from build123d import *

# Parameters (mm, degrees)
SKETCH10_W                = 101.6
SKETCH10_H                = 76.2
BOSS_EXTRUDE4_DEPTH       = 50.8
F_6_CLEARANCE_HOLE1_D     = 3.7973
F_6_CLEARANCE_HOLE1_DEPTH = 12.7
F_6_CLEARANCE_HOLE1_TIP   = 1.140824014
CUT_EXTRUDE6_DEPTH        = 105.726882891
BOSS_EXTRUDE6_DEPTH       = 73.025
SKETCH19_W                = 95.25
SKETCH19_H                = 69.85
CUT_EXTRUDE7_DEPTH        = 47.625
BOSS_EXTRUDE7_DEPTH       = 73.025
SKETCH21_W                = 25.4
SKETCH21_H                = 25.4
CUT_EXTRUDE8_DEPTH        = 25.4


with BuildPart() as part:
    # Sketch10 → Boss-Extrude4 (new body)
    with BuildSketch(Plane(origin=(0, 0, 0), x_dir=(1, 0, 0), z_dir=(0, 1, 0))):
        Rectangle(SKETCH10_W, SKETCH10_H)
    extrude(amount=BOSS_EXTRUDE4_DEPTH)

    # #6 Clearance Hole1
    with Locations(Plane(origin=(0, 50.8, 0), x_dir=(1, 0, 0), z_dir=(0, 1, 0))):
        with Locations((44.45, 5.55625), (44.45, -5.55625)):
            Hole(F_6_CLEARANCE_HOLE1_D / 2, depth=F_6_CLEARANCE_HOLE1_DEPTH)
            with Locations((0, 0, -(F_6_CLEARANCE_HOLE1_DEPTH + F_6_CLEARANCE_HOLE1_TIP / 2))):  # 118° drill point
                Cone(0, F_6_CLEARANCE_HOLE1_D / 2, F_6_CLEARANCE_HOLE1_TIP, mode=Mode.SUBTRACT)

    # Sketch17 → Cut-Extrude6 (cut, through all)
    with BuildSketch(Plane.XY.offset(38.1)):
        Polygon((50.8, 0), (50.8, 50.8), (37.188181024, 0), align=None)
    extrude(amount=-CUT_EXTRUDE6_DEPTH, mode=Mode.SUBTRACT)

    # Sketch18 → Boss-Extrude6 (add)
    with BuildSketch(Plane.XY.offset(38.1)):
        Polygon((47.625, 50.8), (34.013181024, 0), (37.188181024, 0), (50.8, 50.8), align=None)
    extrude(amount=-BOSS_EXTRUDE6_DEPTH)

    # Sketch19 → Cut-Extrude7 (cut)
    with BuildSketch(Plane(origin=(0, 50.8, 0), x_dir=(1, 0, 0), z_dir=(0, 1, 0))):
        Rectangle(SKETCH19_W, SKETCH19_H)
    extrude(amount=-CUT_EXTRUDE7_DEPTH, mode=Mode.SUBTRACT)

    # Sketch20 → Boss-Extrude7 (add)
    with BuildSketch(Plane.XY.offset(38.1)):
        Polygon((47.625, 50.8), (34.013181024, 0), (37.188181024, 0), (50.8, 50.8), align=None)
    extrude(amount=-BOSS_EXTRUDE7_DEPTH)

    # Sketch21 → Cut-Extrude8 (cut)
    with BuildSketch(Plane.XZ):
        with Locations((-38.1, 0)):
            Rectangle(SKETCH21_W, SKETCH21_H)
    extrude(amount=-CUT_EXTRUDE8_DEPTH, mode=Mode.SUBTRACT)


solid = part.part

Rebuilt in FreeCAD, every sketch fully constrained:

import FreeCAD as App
import Part
import Sketcher
from FreeCAD import Vector
Q = App.Units.Quantity

doc = App.newDocument("Part")
body = doc.addObject("PartDesign::Body", "Body")

sketch1 = doc.addObject("Sketcher::SketchObject", "Sketch")
body.addObject(sketch1)
sketch1.AttachmentSupport = (doc.XZ_Plane, [""])
sketch1.MapMode = "FlatFace"
sketch1.addGeometry(Part.LineSegment(Vector(-50.8, -38.1, 0), Vector(-50.8, 38.1, 0)), False)
sketch1.addGeometry(Part.LineSegment(Vector(-50.8, 38.1, 0), Vector(50.8, 38.1, 0)), False)
sketch1.addGeometry(Part.LineSegment(Vector(50.8, 38.1, 0), Vector(50.8, -38.1, 0)), False)
sketch1.addGeometry(Part.LineSegment(Vector(50.8, -38.1, 0), Vector(-50.8, -38.1, 0)), False)
sketch1.addConstraint(Sketcher.Constraint("Coincident", 0, 2, 1, 1))
sketch1.addConstraint(Sketcher.Constraint("Coincident", 1, 2, 2, 1))
sketch1.addConstraint(Sketcher.Constraint("Coincident", 2, 2, 3, 1))
sketch1.addConstraint(Sketcher.Constraint("Coincident", 3, 2, 0, 1))
sketch1.addConstraint(Sketcher.Constraint("Vertical", 0))
sketch1.addConstraint(Sketcher.Constraint("Horizontal", 1))
sketch1.addConstraint(Sketcher.Constraint("Vertical", 2))
sketch1.addConstraint(Sketcher.Constraint("Horizontal", 3))
sketch1.addConstraint(Sketcher.Constraint("Symmetric", 0, 2, 2, 2, -1, 1))
sketch1.addConstraint(Sketcher.Constraint("DistanceX", 1, 1, 1, 2, Q("4 in")))
sketch1.addConstraint(Sketcher.Constraint("DistanceY", 0, 1, 0, 2, Q("3 in")))
pad1 = doc.addObject("PartDesign::Pad", "Pad")
body.addObject(pad1)
pad1.Profile = sketch1
pad1.Length = Q("2 in")
pad1.Reversed = True

sketch2 = doc.addObject("Sketcher::SketchObject", "Sketch001")
body.addObject(sketch2)
sketch2.AttachmentSupport = (doc.XZ_Plane, [""])
sketch2.MapMode = "FlatFace"
sketch2.AttachmentOffset = App.Placement(Vector(0, 0, -2 * 25.4), App.Rotation())
sketch2.addGeometry(Part.Circle(Vector(44.45, -5.55625, 0), Vector(0, 0, 1), 1.89865), False)
sketch2.addGeometry(Part.Circle(Vector(44.45, 5.55625, 0), Vector(0, 0, 1), 1.89865), False)
sketch2.addConstraint(Sketcher.Constraint("Equal", 0, 1))
sketch2.addConstraint(Sketcher.Constraint("Symmetric", 0, 3, 1, 3, -1))
sketch2.addConstraint(Sketcher.Constraint("Diameter", 0, Q("0.1495 in")))
sketch2.addConstraint(Sketcher.Constraint("DistanceX", -1, 1, 0, 3, Q("1.75 in")))
sketch2.addConstraint(Sketcher.Constraint("DistanceY", 0, 3, -1, 1, Q("0.21875 in")))
doc.recompute()
hole = doc.addObject("PartDesign::Hole", "Hole")
body.addObject(hole)
hole.Profile = sketch2
hole.ThreadType = "None"
hole.Diameter = Q("0.1495 in")
hole.DepthType = "Dimension"
hole.Depth = Q("0.5 in")
hole.DrillPoint = "Angled"
hole.DrillPointAngle = 118
hole.Reversed = True

sketch3 = doc.addObject("Sketcher::SketchObject", "Sketch002")
body.addObject(sketch3)
sketch3.AttachmentSupport = (doc.XY_Plane, [""])
sketch3.MapMode = "FlatFace"
sketch3.AttachmentOffset = App.Placement(Vector(0, 0, 1.5 * 25.4), App.Rotation())
sketch3.addGeometry(Part.LineSegment(Vector(50.8, 0, 0), Vector(50.8, 50.8, 0)), False)
sketch3.addGeometry(Part.LineSegment(Vector(50.8, 50.8, 0), Vector(37.188181, 0, 0)), False)
sketch3.addGeometry(Part.LineSegment(Vector(37.188181, 0, 0), Vector(50.8, 0, 0)), False)
sketch3.addConstraint(Sketcher.Constraint("Coincident", 0, 2, 1, 1))
sketch3.addConstraint(Sketcher.Constraint("Coincident", 1, 2, 2, 1))
sketch3.addConstraint(Sketcher.Constraint("Coincident", 2, 2, 0, 1))
sketch3.addConstraint(Sketcher.Constraint("Vertical", 0))
sketch3.addConstraint(Sketcher.Constraint("Horizontal", 2))
sketch3.addConstraint(Sketcher.Constraint("PointOnObject", 1, 2, -1))
sketch3.addConstraint(Sketcher.Constraint("DistanceY", 0, 1, 0, 2, Q("2 in")))
sketch3.addConstraint(Sketcher.Constraint("DistanceX", -1, 1, 0, 2, Q("2 in")))
sketch3.addConstraint(Sketcher.Constraint("Angle", 1, Q("-105 deg")))
pocket1 = doc.addObject("PartDesign::Pocket", "Pocket")
body.addObject(pocket1)
pocket1.Profile = sketch3
pocket1.Type = "ThroughAll"

sketch4 = doc.addObject("Sketcher::SketchObject", "Sketch003")
body.addObject(sketch4)
sketch4.AttachmentSupport = (doc.XY_Plane, [""])
sketch4.MapMode = "FlatFace"
sketch4.AttachmentOffset = App.Placement(Vector(0, 0, 1.5 * 25.4), App.Rotation())
sketch4.addGeometry(Part.LineSegment(Vector(47.625, 50.8, 0), Vector(34.013181, 0, 0)), False)
sketch4.addGeometry(Part.LineSegment(Vector(34.013181, 0, 0), Vector(37.188181, 0, 0)), False)
sketch4.addGeometry(Part.LineSegment(Vector(37.188181, 0, 0), Vector(50.8, 50.8, 0)), False)
sketch4.addGeometry(Part.LineSegment(Vector(50.8, 50.8, 0), Vector(47.625, 50.8, 0)), False)
sketch4.addConstraint(Sketcher.Constraint("Coincident", 0, 2, 1, 1))
sketch4.addConstraint(Sketcher.Constraint("Coincident", 1, 2, 2, 1))
sketch4.addConstraint(Sketcher.Constraint("Coincident", 2, 2, 3, 1))
sketch4.addConstraint(Sketcher.Constraint("Coincident", 3, 2, 0, 1))
sketch4.addConstraint(Sketcher.Constraint("Horizontal", 1))
sketch4.addConstraint(Sketcher.Constraint("Horizontal", 3))
sketch4.addConstraint(Sketcher.Constraint("PointOnObject", 0, 2, -1))
sketch4.addConstraint(Sketcher.Constraint("Parallel", 0, 2))
sketch4.addConstraint(Sketcher.Constraint("DistanceX", -1, 1, 2, 2, Q("2 in")))
sketch4.addConstraint(Sketcher.Constraint("DistanceY", -1, 1, 2, 2, Q("2 in")))
sketch4.addConstraint(Sketcher.Constraint("Angle", 0, Q("-105 deg")))
sketch4.addConstraint(Sketcher.Constraint("DistanceX", 1, 1, 1, 2, Q("0.125 in")))
pad2 = doc.addObject("PartDesign::Pad", "Pad001")
body.addObject(pad2)
pad2.Profile = sketch4
pad2.Length = Q("2.875 in")
pad2.Reversed = True

sketch5 = doc.addObject("Sketcher::SketchObject", "Sketch004")
body.addObject(sketch5)
sketch5.AttachmentSupport = (doc.XZ_Plane, [""])
sketch5.MapMode = "FlatFace"
sketch5.AttachmentOffset = App.Placement(Vector(0, 0, -2 * 25.4), App.Rotation())
sketch5.addGeometry(Part.LineSegment(Vector(-47.625, -34.925, 0), Vector(-47.625, 34.925, 0)), False)
sketch5.addGeometry(Part.LineSegment(Vector(-47.625, 34.925, 0), Vector(47.625, 34.925, 0)), False)
sketch5.addGeometry(Part.LineSegment(Vector(47.625, 34.925, 0), Vector(47.625, -34.925, 0)), False)
sketch5.addGeometry(Part.LineSegment(Vector(47.625, -34.925, 0), Vector(-47.625, -34.925, 0)), False)
sketch5.addConstraint(Sketcher.Constraint("Coincident", 0, 2, 1, 1))
sketch5.addConstraint(Sketcher.Constraint("Coincident", 1, 2, 2, 1))
sketch5.addConstraint(Sketcher.Constraint("Coincident", 2, 2, 3, 1))
sketch5.addConstraint(Sketcher.Constraint("Coincident", 3, 2, 0, 1))
sketch5.addConstraint(Sketcher.Constraint("Vertical", 0))
sketch5.addConstraint(Sketcher.Constraint("Horizontal", 1))
sketch5.addConstraint(Sketcher.Constraint("Vertical", 2))
sketch5.addConstraint(Sketcher.Constraint("Horizontal", 3))
sketch5.addConstraint(Sketcher.Constraint("Symmetric", 0, 2, 2, 2, -1, 1))
sketch5.addConstraint(Sketcher.Constraint("DistanceX", 1, 1, 1, 2, Q("3.75 in")))
sketch5.addConstraint(Sketcher.Constraint("DistanceY", 0, 1, 0, 2, Q("2.75 in")))
pocket2 = doc.addObject("PartDesign::Pocket", "Pocket001")
body.addObject(pocket2)
pocket2.Profile = sketch5
pocket2.Length = Q("1.875 in")
pocket2.Reversed = True

sketch6 = doc.addObject("Sketcher::SketchObject", "Sketch005")
body.addObject(sketch6)
sketch6.AttachmentSupport = (doc.XY_Plane, [""])
sketch6.MapMode = "FlatFace"
sketch6.AttachmentOffset = App.Placement(Vector(0, 0, 1.5 * 25.4), App.Rotation())
sketch6.addGeometry(Part.LineSegment(Vector(47.625, 50.8, 0), Vector(34.013181, 0, 0)), False)
sketch6.addGeometry(Part.LineSegment(Vector(34.013181, 0, 0), Vector(37.188181, 0, 0)), False)
sketch6.addGeometry(Part.LineSegment(Vector(37.188181, 0, 0), Vector(50.8, 50.8, 0)), False)
sketch6.addGeometry(Part.LineSegment(Vector(50.8, 50.8, 0), Vector(47.625, 50.8, 0)), False)
sketch6.addConstraint(Sketcher.Constraint("Coincident", 0, 2, 1, 1))
sketch6.addConstraint(Sketcher.Constraint("Coincident", 1, 2, 2, 1))
sketch6.addConstraint(Sketcher.Constraint("Coincident", 2, 2, 3, 1))
sketch6.addConstraint(Sketcher.Constraint("Coincident", 3, 2, 0, 1))
sketch6.addConstraint(Sketcher.Constraint("Horizontal", 1))
sketch6.addConstraint(Sketcher.Constraint("Horizontal", 3))
sketch6.addConstraint(Sketcher.Constraint("PointOnObject", 0, 2, -1))
sketch6.addConstraint(Sketcher.Constraint("Parallel", 0, 2))
sketch6.addConstraint(Sketcher.Constraint("DistanceX", -1, 1, 2, 2, Q("2 in")))
sketch6.addConstraint(Sketcher.Constraint("DistanceY", -1, 1, 2, 2, Q("2 in")))
sketch6.addConstraint(Sketcher.Constraint("Angle", 0, Q("-105 deg")))
sketch6.addConstraint(Sketcher.Constraint("DistanceX", 1, 1, 1, 2, Q("0.125 in")))
pad3 = doc.addObject("PartDesign::Pad", "Pad002")
body.addObject(pad3)
pad3.Profile = sketch6
pad3.Length = Q("2.875 in")
pad3.Reversed = True

sketch7 = doc.addObject("Sketcher::SketchObject", "Sketch006")
body.addObject(sketch7)
sketch7.AttachmentSupport = (doc.XZ_Plane, [""])
sketch7.MapMode = "FlatFace"
sketch7.addGeometry(Part.LineSegment(Vector(-50.8, 12.7, 0), Vector(-50.8, -12.7, 0)), False)
sketch7.addGeometry(Part.LineSegment(Vector(-50.8, -12.7, 0), Vector(-25.4, -12.7, 0)), False)
sketch7.addGeometry(Part.LineSegment(Vector(-25.4, -12.7, 0), Vector(-25.4, 12.7, 0)), False)
sketch7.addGeometry(Part.LineSegment(Vector(-25.4, 12.7, 0), Vector(-50.8, 12.7, 0)), False)
sketch7.addConstraint(Sketcher.Constraint("Coincident", 0, 2, 1, 1))
sketch7.addConstraint(Sketcher.Constraint("Coincident", 1, 2, 2, 1))
sketch7.addConstraint(Sketcher.Constraint("Coincident", 2, 2, 3, 1))
sketch7.addConstraint(Sketcher.Constraint("Coincident", 3, 2, 0, 1))
sketch7.addConstraint(Sketcher.Constraint("Vertical", 0))
sketch7.addConstraint(Sketcher.Constraint("Horizontal", 1))
sketch7.addConstraint(Sketcher.Constraint("Vertical", 2))
sketch7.addConstraint(Sketcher.Constraint("Horizontal", 3))
sketch7.addConstraint(Sketcher.Constraint("Equal", 3, 0))
sketch7.addConstraint(Sketcher.Constraint("DistanceX", 1, 1, 1, 2, Q("1 in")))
sketch7.addConstraint(Sketcher.Constraint("DistanceX", 0, 2, -1, 1, Q("2 in")))
sketch7.addConstraint(Sketcher.Constraint("DistanceY", 0, 2, -1, 1, Q("0.5 in")))
pocket3 = doc.addObject("PartDesign::Pocket", "Pocket002")
body.addObject(pocket3)
pocket3.Profile = sketch7
pocket3.Length = Q("1 in")

doc.recompute()
